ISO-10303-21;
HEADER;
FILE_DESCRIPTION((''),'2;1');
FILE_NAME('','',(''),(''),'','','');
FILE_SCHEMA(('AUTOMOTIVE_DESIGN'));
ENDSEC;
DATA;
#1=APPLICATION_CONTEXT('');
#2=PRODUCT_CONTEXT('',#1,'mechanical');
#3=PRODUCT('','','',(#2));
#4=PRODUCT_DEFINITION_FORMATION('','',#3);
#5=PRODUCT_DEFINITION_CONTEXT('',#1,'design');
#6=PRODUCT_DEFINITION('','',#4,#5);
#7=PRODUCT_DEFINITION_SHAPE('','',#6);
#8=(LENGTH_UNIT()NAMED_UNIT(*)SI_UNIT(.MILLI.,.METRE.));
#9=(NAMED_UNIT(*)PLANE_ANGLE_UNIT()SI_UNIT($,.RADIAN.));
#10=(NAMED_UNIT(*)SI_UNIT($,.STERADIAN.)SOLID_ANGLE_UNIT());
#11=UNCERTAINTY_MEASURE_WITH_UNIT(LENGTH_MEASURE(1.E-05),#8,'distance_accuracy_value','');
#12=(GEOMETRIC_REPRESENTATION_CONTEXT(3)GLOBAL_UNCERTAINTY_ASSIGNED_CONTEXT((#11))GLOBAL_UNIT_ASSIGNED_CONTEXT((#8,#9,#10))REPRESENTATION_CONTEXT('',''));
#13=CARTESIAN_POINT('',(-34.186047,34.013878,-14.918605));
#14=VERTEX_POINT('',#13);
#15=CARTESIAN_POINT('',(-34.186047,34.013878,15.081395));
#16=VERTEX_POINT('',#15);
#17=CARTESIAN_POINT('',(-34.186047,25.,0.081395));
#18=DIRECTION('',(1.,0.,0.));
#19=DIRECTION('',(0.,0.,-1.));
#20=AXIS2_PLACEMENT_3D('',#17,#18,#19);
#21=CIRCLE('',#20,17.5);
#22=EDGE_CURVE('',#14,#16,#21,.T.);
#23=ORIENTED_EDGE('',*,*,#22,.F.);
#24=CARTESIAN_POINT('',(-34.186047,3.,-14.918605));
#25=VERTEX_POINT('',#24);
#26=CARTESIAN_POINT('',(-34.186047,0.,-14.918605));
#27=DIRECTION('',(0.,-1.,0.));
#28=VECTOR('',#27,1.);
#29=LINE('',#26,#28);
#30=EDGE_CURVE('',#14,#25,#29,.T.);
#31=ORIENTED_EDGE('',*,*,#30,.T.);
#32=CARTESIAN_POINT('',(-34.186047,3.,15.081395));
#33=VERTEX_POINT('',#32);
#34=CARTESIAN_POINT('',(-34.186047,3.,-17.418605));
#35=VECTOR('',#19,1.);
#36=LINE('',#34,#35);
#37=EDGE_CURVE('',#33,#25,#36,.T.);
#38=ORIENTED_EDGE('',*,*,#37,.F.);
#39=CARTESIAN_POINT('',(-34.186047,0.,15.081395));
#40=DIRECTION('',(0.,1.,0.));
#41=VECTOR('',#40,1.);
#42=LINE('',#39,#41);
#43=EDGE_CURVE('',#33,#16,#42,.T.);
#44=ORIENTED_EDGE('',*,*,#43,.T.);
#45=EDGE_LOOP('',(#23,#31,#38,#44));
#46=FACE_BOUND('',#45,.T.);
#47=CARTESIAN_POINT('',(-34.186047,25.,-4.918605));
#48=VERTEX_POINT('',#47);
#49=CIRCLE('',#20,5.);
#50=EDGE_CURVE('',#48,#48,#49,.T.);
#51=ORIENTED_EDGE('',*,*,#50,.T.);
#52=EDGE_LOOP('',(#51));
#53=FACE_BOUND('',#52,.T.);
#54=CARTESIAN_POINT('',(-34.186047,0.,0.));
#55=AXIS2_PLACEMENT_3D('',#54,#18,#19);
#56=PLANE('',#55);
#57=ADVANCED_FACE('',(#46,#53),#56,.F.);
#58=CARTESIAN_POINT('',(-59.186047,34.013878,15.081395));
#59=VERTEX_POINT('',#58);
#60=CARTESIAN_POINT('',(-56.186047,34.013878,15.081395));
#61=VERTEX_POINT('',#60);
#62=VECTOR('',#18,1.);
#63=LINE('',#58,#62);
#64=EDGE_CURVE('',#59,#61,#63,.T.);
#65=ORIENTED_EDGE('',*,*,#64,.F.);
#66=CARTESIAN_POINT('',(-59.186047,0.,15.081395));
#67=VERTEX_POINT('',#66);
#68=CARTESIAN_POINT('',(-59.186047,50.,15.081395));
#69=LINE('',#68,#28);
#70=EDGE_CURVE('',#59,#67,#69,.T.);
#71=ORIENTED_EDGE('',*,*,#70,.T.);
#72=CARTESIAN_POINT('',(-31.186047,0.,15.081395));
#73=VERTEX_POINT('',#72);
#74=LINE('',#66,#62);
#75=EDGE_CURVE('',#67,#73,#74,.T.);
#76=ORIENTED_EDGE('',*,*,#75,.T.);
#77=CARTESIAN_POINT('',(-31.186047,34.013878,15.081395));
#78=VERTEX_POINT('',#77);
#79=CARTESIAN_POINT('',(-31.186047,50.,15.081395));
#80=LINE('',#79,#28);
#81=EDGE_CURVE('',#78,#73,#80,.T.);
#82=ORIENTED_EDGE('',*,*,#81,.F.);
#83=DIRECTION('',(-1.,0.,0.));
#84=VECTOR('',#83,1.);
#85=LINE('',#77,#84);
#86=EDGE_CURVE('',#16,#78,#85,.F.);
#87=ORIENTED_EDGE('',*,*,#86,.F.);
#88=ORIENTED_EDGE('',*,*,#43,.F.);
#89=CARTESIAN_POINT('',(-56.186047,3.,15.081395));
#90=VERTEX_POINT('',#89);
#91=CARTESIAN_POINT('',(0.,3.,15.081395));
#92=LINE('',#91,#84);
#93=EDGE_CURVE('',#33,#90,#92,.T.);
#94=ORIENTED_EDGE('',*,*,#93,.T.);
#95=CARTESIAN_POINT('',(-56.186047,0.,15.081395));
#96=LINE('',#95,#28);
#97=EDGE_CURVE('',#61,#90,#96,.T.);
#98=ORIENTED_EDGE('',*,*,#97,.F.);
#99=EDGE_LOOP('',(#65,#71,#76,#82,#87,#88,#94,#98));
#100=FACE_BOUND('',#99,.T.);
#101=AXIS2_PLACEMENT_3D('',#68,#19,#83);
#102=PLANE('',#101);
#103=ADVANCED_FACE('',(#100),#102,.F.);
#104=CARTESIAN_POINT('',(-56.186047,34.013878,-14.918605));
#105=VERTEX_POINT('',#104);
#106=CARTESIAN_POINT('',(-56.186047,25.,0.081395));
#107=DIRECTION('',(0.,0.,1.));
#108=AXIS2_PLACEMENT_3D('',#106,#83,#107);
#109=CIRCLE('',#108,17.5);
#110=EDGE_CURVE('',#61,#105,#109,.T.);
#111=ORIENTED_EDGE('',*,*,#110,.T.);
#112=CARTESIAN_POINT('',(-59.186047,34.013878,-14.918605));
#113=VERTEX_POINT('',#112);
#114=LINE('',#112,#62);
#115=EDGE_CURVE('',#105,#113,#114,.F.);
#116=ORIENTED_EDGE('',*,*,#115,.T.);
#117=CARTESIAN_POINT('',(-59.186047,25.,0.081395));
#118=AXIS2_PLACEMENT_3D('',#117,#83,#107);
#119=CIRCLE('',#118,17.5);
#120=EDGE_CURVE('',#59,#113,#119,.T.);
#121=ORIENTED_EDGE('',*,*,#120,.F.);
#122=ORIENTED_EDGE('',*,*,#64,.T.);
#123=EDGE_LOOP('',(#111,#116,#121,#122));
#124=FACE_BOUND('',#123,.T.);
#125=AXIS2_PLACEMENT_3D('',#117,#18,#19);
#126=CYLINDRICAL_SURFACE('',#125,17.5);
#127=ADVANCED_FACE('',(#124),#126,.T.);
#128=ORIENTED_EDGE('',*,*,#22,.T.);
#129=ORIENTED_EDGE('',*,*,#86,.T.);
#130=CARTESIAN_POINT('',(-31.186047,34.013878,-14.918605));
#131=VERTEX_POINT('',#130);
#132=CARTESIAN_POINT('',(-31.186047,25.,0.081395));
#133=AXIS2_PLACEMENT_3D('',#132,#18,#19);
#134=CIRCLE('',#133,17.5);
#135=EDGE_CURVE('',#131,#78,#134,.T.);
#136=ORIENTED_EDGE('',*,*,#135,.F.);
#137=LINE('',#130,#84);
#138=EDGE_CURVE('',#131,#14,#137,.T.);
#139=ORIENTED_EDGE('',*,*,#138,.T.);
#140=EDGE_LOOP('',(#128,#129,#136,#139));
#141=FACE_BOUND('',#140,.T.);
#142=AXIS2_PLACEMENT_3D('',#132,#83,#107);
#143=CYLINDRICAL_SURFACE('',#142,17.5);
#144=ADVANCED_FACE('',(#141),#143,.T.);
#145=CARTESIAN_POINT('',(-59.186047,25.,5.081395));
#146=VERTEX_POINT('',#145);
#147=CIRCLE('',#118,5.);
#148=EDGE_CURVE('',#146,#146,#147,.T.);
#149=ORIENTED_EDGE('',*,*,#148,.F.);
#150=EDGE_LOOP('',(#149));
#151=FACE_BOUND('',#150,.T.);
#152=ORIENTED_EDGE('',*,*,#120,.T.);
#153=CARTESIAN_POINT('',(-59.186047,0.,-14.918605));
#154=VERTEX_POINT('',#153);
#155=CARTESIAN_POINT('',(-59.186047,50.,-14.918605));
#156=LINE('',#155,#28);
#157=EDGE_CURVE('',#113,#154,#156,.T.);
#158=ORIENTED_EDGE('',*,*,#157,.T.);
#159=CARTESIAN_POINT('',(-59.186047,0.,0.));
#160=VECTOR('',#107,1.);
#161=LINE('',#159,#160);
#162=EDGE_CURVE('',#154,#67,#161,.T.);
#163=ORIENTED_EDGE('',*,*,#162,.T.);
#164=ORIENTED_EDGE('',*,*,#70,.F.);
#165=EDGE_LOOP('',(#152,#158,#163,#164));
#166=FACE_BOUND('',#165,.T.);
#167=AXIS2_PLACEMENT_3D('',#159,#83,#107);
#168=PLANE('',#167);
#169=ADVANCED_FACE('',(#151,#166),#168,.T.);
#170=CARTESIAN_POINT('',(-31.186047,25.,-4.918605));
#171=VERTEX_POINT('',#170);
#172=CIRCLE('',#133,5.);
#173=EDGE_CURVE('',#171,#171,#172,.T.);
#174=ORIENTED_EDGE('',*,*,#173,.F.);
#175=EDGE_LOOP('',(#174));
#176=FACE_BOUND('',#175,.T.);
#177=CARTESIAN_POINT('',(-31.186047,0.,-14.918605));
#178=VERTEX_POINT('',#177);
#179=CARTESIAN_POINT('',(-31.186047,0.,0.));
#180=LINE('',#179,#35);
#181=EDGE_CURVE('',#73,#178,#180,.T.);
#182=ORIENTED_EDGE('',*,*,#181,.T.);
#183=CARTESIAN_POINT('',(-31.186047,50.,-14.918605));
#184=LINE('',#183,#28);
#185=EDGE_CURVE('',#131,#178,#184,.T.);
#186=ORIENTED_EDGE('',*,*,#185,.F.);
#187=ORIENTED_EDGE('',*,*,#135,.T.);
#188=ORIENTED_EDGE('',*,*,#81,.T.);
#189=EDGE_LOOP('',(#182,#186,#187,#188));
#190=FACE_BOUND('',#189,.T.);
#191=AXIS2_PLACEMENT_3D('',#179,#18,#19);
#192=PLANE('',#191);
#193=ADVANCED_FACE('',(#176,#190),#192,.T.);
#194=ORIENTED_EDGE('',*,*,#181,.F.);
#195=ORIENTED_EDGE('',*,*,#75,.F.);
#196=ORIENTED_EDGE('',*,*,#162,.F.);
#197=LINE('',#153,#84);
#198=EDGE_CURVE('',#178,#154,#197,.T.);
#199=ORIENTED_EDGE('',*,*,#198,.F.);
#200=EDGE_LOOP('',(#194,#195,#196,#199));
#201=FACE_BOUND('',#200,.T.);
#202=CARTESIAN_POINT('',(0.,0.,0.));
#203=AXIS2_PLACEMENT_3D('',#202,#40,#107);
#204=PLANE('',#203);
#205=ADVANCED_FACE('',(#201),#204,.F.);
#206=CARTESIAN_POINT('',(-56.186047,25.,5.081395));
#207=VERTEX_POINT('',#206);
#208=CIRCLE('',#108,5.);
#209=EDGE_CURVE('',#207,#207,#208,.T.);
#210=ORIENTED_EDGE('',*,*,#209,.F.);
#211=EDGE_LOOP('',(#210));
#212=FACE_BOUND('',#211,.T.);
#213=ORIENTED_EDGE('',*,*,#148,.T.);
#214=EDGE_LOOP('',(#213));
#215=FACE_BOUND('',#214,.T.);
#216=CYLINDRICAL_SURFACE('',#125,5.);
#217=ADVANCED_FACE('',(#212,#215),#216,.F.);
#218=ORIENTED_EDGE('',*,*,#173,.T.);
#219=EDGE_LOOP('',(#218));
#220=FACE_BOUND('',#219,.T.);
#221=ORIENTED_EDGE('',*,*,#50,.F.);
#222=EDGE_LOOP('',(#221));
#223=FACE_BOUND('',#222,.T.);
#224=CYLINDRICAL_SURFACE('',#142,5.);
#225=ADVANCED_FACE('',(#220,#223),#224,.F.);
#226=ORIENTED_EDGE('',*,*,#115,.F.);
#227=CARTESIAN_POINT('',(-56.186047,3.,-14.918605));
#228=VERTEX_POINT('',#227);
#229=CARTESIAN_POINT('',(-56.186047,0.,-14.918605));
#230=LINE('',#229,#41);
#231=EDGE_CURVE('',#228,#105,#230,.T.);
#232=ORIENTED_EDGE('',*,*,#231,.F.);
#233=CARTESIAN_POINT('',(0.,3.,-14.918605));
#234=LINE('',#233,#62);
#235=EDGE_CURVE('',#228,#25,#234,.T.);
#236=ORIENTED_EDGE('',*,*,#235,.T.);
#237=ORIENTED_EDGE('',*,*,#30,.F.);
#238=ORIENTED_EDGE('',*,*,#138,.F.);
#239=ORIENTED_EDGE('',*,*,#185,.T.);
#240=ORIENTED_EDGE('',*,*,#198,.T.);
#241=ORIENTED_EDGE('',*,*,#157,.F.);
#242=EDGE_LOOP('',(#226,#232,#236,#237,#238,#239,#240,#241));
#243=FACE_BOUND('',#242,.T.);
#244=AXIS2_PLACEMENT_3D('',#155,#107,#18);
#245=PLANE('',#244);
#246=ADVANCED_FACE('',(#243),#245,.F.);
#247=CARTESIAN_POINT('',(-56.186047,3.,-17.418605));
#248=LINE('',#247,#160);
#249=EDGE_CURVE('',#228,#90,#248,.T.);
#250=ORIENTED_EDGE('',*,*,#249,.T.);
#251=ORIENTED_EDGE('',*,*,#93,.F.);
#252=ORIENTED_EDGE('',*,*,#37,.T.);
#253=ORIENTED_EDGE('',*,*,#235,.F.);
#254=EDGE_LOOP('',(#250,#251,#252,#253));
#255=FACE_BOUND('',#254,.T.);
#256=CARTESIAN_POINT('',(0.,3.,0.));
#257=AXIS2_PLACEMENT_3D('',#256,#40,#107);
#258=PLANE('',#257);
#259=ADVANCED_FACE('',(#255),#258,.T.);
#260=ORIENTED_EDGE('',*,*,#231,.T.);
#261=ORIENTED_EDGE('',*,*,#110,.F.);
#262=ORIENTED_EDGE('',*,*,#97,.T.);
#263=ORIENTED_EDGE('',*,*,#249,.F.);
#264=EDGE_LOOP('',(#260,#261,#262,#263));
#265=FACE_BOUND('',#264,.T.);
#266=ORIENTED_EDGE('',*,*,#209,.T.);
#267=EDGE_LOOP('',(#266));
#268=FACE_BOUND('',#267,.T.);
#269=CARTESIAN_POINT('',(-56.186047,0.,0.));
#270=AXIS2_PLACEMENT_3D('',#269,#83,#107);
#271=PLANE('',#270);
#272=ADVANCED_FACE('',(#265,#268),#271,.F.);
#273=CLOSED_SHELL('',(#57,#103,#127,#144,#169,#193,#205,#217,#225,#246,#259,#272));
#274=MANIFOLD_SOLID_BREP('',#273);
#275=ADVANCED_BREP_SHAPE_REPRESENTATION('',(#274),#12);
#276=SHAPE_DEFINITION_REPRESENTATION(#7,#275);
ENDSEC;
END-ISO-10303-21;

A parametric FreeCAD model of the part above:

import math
import FreeCAD as App
import Part
import Sketcher
from FreeCAD import Vector
Q = App.Units.Quantity


def add_polygon(sketch, points):
    """Adds a closed chain of lines whose ends are joined by coincident constraints."""
    first, n = sketch.GeometryCount, len(points)
    for a, b in zip(points, points[1:] + points[:1]):
        sketch.addGeometry(Part.LineSegment(App.Vector(*a, 0), App.Vector(*b, 0)), False)
    for i in range(n):
        sketch.addConstraint(Sketcher.Constraint("Coincident", first + i, 2, first + (i + 1) % n, 1))

doc = App.newDocument("Part")
params = doc.addObject("Spreadsheet::Sheet", "Params")
for row, (alias, value) in enumerate([
    ("sketch1_width", "22 mm"),
    ("sketch1_height", "35 mm"),
    ("pad1_length", "3 mm"),
    ("sketch2_diameter", "10 mm"),
    ("sketch2_radius", "17.5 mm"),
    ("sketch2_width", "25 mm"),
    ("pad2_length", "3 mm"),
    ("sketch3_diameter", "10 mm"),
    ("sketch3_radius", "17.5 mm"),
    ("sketch3_width", "25 mm"),
    ("pad3_length", "3 mm"),
    ("sketch4_width", "28 mm"),
    ("sketch4_height", "2.5 mm"),
    ("pocket1_length", "50 mm"),
], start=1):
    params.set(f"A{row}", alias)
    params.set(f"B{row}", "=" + value)
    params.setAlias(f"B{row}", alias)

body = doc.addObject("PartDesign::Body", "Body")

# Sketch on XZ plane
sketch1 = doc.addObject("Sketcher::SketchObject", "Sketch")
body.addObject(sketch1)
sketch1.AttachmentSupport = (doc.XZ_Plane, [""])
sketch1.MapMode = "FlatFace"
add_polygon(sketch1, [(-56.186047, -17.418605), (-56.186047, 17.581395), (-34.186047, 17.581395), (-34.186047, -17.418605)])  # lines 0-3
sketch1.addConstraint([
    Sketcher.Constraint("Vertical", 0),
    Sketcher.Constraint("Horizontal", 1),
    Sketcher.Constraint("Vertical", 2),
    Sketcher.Constraint("Horizontal", 3),
    Sketcher.Constraint("DistanceX", 1, 1, 1, 2, Q("22 mm")),
    Sketcher.Constraint("DistanceY", 0, 1, 0, 2, Q("35 mm")),
    Sketcher.Constraint("DistanceX", 0, 2, -1, 1, Q("56.186047 mm")),
    Sketcher.Constraint("DistanceY", -1, 1, 0, 2, Q("17.581395 mm")),
])
sketch1.setExpression("Constraints[8]", "Params.sketch1_width")
sketch1.setExpression("Constraints[9]", "Params.sketch1_height")
pad1 = doc.addObject("PartDesign::Pad", "Pad")
body.addObject(pad1)
pad1.Profile = sketch1
pad1.setExpression("Length", "Params.pad1_length")
pad1.Reversed = True

# Sketch on YZ plane
sketch2 = doc.addObject("Sketcher::SketchObject", "Sketch001")
body.addObject(sketch2)
sketch2.AttachmentSupport = (doc.YZ_Plane, [""])
sketch2.MapMode = "FlatFace"
sketch2.AttachmentOffset = App.Placement(Vector(0, 0, -34.186047), App.Rotation())
sketch2.addGeometry([
    Part.ArcOfCircle(Part.Circle(Vector(25, 0.081395, 0), Vector(0, 0, 1), 17.5), math.radians(-90), math.radians(90)),  # 0
    Part.LineSegment(Vector(25, 17.581395, 0), Vector(0, 17.581395, 0)),  # 1
    Part.LineSegment(Vector(0, 17.581395, 0), Vector(0, -17.418605, 0)),  # 2
    Part.LineSegment(Vector(0, -17.418605, 0), Vector(25, -17.418605, 0)),  # 3
    Part.Circle(Vector(25, 0.081395, 0), Vector(0, 0, 1), 5),  # 4
], False)
sketch2.addConstraint([
    Sketcher.Constraint("Tangent", 0, 2, 1, 1),
    Sketcher.Constraint("Coincident", 1, 2, 2, 1),
    Sketcher.Constraint("Coincident", 2, 2, 3, 1),
    Sketcher.Constraint("Tangent", 3, 2, 0, 1),
    Sketcher.Constraint("Horizontal", 1),
    Sketcher.Constraint("Vertical", 2),
    Sketcher.Constraint("Horizontal", 3),
    Sketcher.Constraint("Coincident", 4, 3, 0, 3),
    Sketcher.Constraint("PointOnObject", 1, 2, -2),
    Sketcher.Constraint("Diameter", 4, Q("10 mm")),
    Sketcher.Constraint("Radius", 0, Q("17.5 mm")),
    Sketcher.Constraint("DistanceX", 1, 2, 1, 1, Q("25 mm")),
    Sketcher.Constraint("DistanceY", -1, 1, 0, 3, Q("0.081395 mm")),
])
sketch2.setExpression("Constraints[9]", "Params.sketch2_diameter")
sketch2.setExpression("Constraints[10]", "Params.sketch2_radius")
sketch2.setExpression("Constraints[11]", "Params.sketch2_width")
pad2 = doc.addObject("PartDesign::Pad", "Pad001")
body.addObject(pad2)
pad2.Profile = sketch2
pad2.setExpression("Length", "Params.pad2_length")

# Sketch on YZ plane
sketch3 = doc.addObject("Sketcher::SketchObject", "Sketch002")
body.addObject(sketch3)
sketch3.AttachmentSupport = (doc.YZ_Plane, [""])
sketch3.MapMode = "FlatFace"
sketch3.AttachmentOffset = App.Placement(Vector(0, 0, -59.186047), App.Rotation())
sketch3.addGeometry([
    Part.ArcOfCircle(Part.Circle(Vector(25, 0.081395, 0), Vector(0, 0, 1), 17.5), math.radians(-90), math.radians(90)),  # 0
    Part.LineSegment(Vector(25, -17.418605, 0), Vector(0, -17.418605, 0)),  # 1
    Part.LineSegment(Vector(0, -17.418605, 0), Vector(0, 17.581395, 0)),  # 2
    Part.LineSegment(Vector(0, 17.581395, 0), Vector(25, 17.581395, 0)),  # 3
    Part.Circle(Vector(25, 0.081395, 0), Vector(0, 0, 1), 5),  # 4
], False)
sketch3.addConstraint([
    Sketcher.Constraint("Tangent", 0, 1, 1, 1),
    Sketcher.Constraint("Coincident", 1, 2, 2, 1),
    Sketcher.Constraint("Coincident", 2, 2, 3, 1),
    Sketcher.Constraint("Tangent", 3, 2, 0, 2),
    Sketcher.Constraint("Horizontal", 1),
    Sketcher.Constraint("Vertical", 2),
    Sketcher.Constraint("Horizontal", 3),
    Sketcher.Constraint("Coincident", 4, 3, 0, 3),
    Sketcher.Constraint("PointOnObject", 1, 2, -2),
    Sketcher.Constraint("Diameter", 4, Q("10 mm")),
    Sketcher.Constraint("Radius", 0, Q("17.5 mm")),
    Sketcher.Constraint("DistanceX", 1, 2, 1, 1, Q("25 mm")),
    Sketcher.Constraint("DistanceY", -1, 1, 0, 3, Q("0.081395 mm")),
])
sketch3.setExpression("Constraints[9]", "Params.sketch3_diameter")
sketch3.setExpression("Constraints[10]", "Params.sketch3_radius")
sketch3.setExpression("Constraints[11]", "Params.sketch3_width")
pad3 = doc.addObject("PartDesign::Pad", "Pad002")
body.addObject(pad3)
pad3.Profile = sketch3
pad3.setExpression("Length", "Params.pad3_length")

# Sketch on XZ plane
sketch4 = doc.addObject("Sketcher::SketchObject", "Sketch003")
body.addObject(sketch4)
sketch4.AttachmentSupport = (doc.XZ_Plane, [""])
sketch4.MapMode = "FlatFace"
add_polygon(sketch4, [(-59.186047, 17.581395), (-59.186047, 15.081395), (-31.186047, 15.081395), (-31.186047, 17.581395)])  # lines 0-3
add_polygon(sketch4, [(-59.186047, -14.918605), (-59.186047, -17.418605), (-31.186047, -17.418605), (-31.186047, -14.918605)])  # lines 4-7
sketch4.addConstraint([
    Sketcher.Constraint("Vertical", 0),
    Sketcher.Constraint("Horizontal", 1),
    Sketcher.Constraint("Vertical", 2),
    Sketcher.Constraint("Horizontal", 3),
    Sketcher.Constraint("Vertical", 4),
    Sketcher.Constraint("Horizontal", 5),
    Sketcher.Constraint("Vertical", 6),
    Sketcher.Constraint("Horizontal", 7),
    Sketcher.Constraint("Vertical", 3, 2, 4, 2),
    Sketcher.Constraint("Vertical", 2, 2, 5, 2),
    Sketcher.Constraint("Equal", 2, 4),
    Sketcher.Constraint("DistanceX", 1, 1, 1, 2, Q("28 mm")),
    Sketcher.Constraint("DistanceY", 0, 2, 0, 1, Q("2.5 mm")),
    Sketcher.Constraint("DistanceY", 4, 2, 3, 2, Q("35 mm")),
    Sketcher.Constraint("DistanceX", 0, 2, -1, 1, Q("59.186047 mm")),
    Sketcher.Constraint("DistanceY", -1, 1, 0, 2, Q("15.081395 mm")),
])
sketch4.setExpression("Constraints[19]", "Params.sketch4_width")
sketch4.setExpression("Constraints[20]", "Params.sketch4_height")
pocket1 = doc.addObject("PartDesign::Pocket", "Pocket")
body.addObject(pocket1)
pocket1.Profile = sketch4
pocket1.setExpression("Length", "Params.pocket1_length")

doc.recompute()
